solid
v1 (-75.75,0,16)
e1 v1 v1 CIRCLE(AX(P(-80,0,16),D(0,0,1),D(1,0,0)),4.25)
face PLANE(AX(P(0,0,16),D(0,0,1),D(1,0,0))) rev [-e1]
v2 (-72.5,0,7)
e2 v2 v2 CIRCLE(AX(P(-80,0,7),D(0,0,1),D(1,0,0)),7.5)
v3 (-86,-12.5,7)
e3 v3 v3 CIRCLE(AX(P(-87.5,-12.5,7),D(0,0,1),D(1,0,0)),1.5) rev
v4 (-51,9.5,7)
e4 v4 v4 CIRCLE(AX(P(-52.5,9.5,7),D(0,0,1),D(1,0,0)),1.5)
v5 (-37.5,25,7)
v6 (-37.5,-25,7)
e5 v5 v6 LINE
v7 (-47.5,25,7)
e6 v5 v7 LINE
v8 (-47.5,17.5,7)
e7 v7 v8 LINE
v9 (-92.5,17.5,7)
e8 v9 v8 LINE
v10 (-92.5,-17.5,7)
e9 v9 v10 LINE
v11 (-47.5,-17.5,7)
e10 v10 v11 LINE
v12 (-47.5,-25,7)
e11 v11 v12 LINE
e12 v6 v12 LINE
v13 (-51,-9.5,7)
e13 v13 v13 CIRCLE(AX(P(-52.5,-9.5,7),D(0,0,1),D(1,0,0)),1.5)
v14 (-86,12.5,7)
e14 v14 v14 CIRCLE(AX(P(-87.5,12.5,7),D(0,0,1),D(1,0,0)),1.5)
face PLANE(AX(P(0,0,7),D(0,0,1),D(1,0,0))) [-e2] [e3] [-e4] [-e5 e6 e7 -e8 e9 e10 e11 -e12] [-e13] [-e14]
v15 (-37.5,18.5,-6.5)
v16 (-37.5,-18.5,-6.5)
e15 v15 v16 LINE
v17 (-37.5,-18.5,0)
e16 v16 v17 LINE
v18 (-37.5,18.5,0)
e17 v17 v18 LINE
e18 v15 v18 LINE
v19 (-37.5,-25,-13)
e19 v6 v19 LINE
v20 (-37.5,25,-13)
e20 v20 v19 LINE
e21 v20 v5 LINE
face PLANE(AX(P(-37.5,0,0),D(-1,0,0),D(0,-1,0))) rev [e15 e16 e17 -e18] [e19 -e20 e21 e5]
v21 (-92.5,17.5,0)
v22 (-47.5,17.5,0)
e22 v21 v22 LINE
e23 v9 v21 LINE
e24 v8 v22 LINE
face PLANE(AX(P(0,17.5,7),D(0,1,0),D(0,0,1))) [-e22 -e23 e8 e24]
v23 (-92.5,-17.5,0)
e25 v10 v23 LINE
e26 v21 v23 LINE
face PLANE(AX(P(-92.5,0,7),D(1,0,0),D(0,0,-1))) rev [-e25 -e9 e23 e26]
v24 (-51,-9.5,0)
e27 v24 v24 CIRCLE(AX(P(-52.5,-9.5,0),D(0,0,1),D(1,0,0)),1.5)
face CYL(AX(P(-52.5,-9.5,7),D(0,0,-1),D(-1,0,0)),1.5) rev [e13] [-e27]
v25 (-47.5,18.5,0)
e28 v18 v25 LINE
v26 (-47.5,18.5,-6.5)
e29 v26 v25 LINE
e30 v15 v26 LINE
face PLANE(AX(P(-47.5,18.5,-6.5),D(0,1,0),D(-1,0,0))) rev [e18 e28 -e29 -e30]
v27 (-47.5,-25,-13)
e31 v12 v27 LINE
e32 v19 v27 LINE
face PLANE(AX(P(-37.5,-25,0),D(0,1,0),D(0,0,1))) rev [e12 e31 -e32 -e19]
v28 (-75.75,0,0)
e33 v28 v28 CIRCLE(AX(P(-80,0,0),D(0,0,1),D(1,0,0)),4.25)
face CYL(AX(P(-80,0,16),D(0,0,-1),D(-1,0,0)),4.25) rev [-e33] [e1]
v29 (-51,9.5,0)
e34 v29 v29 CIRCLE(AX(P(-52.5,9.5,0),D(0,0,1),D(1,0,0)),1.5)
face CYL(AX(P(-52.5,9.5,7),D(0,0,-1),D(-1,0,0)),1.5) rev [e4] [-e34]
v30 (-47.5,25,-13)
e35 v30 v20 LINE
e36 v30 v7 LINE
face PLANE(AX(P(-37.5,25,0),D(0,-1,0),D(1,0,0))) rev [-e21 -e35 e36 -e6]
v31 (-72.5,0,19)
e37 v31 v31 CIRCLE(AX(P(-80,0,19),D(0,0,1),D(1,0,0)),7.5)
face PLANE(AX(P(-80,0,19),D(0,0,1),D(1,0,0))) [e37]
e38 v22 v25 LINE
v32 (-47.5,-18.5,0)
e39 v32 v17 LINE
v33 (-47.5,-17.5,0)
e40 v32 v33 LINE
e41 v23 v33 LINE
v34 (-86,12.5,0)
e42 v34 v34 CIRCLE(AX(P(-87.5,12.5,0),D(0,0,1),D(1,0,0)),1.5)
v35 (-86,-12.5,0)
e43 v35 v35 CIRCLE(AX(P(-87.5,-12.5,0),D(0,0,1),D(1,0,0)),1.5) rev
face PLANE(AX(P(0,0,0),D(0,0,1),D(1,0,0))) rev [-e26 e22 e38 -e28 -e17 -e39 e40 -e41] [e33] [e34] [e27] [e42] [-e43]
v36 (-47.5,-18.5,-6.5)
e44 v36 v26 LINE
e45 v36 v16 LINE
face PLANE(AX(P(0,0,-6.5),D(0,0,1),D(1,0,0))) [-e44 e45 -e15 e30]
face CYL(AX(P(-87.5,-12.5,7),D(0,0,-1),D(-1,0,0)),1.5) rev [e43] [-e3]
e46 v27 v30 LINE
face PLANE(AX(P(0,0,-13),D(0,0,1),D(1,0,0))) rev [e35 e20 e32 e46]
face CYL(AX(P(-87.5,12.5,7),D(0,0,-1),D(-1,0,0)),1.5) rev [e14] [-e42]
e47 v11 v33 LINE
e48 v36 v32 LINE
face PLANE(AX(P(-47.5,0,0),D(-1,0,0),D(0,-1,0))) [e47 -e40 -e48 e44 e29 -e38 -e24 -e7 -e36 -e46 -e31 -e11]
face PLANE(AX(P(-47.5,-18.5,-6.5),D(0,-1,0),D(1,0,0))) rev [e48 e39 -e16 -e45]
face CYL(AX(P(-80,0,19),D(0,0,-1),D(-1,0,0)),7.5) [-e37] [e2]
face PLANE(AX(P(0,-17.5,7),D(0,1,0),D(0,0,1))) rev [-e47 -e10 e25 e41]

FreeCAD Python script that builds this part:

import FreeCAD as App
import Part
import Sketcher
Q = App.Units.Quantity

doc = App.newDocument("Part")
body = doc.addObject("PartDesign::Body", "Body")

# Sketch on XY plane
sketch1 = body.newObject("Sketcher::SketchObject", "Sketch")
sketch1.AttachmentSupport = (doc.getObject("XY_Plane"), [""])
sketch1.MapMode = "FlatFace"
sketch1.addGeometry([
    Part.LineSegment(App.Vector(-92.5, 17.5, 0), App.Vector(-92.5, -17.5, 0)),  # 0
    Part.LineSegment(App.Vector(-92.5, -17.5, 0), App.Vector(-47.5, -17.5, 0)),  # 1
    Part.LineSegment(App.Vector(-47.5, -17.5, 0), App.Vector(-47.5, 17.5, 0)),  # 2
    Part.LineSegment(App.Vector(-47.5, 17.5, 0), App.Vector(-92.5, 17.5, 0)),  # 3
    Part.Circle(App.Vector(-87.5, -12.5, 0), App.Vector(0, 0, 1), 1.5),  # 4
    Part.Circle(App.Vector(-52.5, -9.5, 0), App.Vector(0, 0, 1), 1.5),  # 5
    Part.Circle(App.Vector(-87.5, 12.5, 0), App.Vector(0, 0, 1), 1.5),  # 6
    Part.Circle(App.Vector(-52.5, 9.5, 0), App.Vector(0, 0, 1), 1.5),  # 7
], False)
sketch1.addConstraint([
    Sketcher.Constraint("Coincident", 0, 2, 1, 1),
    Sketcher.Constraint("Coincident", 1, 2, 2, 1),
    Sketcher.Constraint("Coincident", 2, 2, 3, 1),
    Sketcher.Constraint("Coincident", 3, 2, 0, 1),
    Sketcher.Constraint("Vertical", 0),
    Sketcher.Constraint("Horizontal", 1),
    Sketcher.Constraint("Vertical", 2),
    Sketcher.Constraint("Horizontal", 3),
    Sketcher.Constraint("Equal", 4, 5),
    Sketcher.Constraint("Equal", 5, 6),
    Sketcher.Constraint("Equal", 6, 7),
    Sketcher.Constraint("Symmetric", 4, 3, 6, 3, -1),
    Sketcher.Constraint("Symmetric", 5, 3, 7, 3, -1),
    Sketcher.Constraint("Diameter", 4, Q("3 mm")),
    Sketcher.Constraint("DistanceX", 1, 1, 1, 2, Q("45 mm")),
    Sketcher.Constraint("DistanceY", 0, 2, 0, 1, Q("35 mm")),
    Sketcher.Constraint("DistanceX", 4, 3, 5, 3, Q("35 mm")),
    Sketcher.Constraint("DistanceY", 4, 3, 5, 3, Q("3 mm")),
    Sketcher.Constraint("DistanceY", 4, 3, 6, 3, Q("25 mm")),
    Sketcher.Constraint("DistanceX", 0, 2, 4, 3, Q("5 mm")),
    Sketcher.Constraint("DistanceY", 0, 2, 4, 3, Q("5 mm")),
    Sketcher.Constraint("DistanceX", 4, 3, -1, 1, Q("87.5 mm")),
])
pad1 = body.newObject("PartDesign::Pad", "Pad")
pad1.Profile = sketch1
pad1.Length = 7

# Sketch on YZ plane
sketch2 = body.newObject("Sketcher::SketchObject", "Sketch001")
sketch2.AttachmentSupport = (doc.getObject("YZ_Plane"), [""])
sketch2.MapMode = "FlatFace"
sketch2.AttachmentOffset = App.Placement(App.Vector(0, 0, -47.5), App.Rotation())
sketch2.addGeometry([
    Part.LineSegment(App.Vector(25, 7, 0), App.Vector(-25, 7, 0)),
    Part.LineSegment(App.Vector(-25, 7, 0), App.Vector(-25, 0, 0)),
    Part.LineSegment(App.Vector(-25, 0, 0), App.Vector(25, 0, 0)),
    Part.LineSegment(App.Vector(25, 0, 0), App.Vector(25, 7, 0)),
], False)
sketch2.addConstraint([
    Sketcher.Constraint("Coincident", 0, 2, 1, 1),
    Sketcher.Constraint("Coincident", 1, 2, 2, 1),
    Sketcher.Constraint("Coincident", 2, 2, 3, 1),
    Sketcher.Constraint("Coincident", 3, 2, 0, 1),
    Sketcher.Constraint("Horizontal", 0),
    Sketcher.Constraint("Vertical", 1),
    Sketcher.Constraint("Horizontal", 2),
    Sketcher.Constraint("Vertical", 3),
    Sketcher.Constraint("Symmetric", 1, 2, 2, 2, -1, 1),
    Sketcher.Constraint("DistanceX", 0, 2, 0, 1, Q("50 mm")),
    Sketcher.Constraint("DistanceY", 1, 2, 1, 1, Q("7 mm")),
])
pad2 = body.newObject("PartDesign::Pad", "Pad001")
pad2.Profile = sketch2
pad2.Length = 10

# Sketch on XY plane
sketch3 = body.newObject("Sketcher::SketchObject", "Sketch002")
sketch3.AttachmentSupport = (doc.getObject("XY_Plane"), [""])
sketch3.MapMode = "FlatFace"
sketch3.addGeometry([
    Part.LineSegment(App.Vector(-38, 25, 0), App.Vector(-38, 18, 0)),  # 0
    Part.LineSegment(App.Vector(-38, 18, 0), App.Vector(-48, 18, 0)),  # 1
    Part.LineSegment(App.Vector(-48, 18, 0), App.Vector(-48, 25, 0)),  # 2
    Part.LineSegment(App.Vector(-48, 25, 0), App.Vector(-38, 25, 0)),  # 3
    Part.LineSegment(App.Vector(-38, -18, 0), App.Vector(-38, -25, 0)),  # 4
    Part.LineSegment(App.Vector(-38, -25, 0), App.Vector(-48, -25, 0)),  # 5
    Part.LineSegment(App.Vector(-48, -25, 0), App.Vector(-48, -18, 0)),  # 6
    Part.LineSegment(App.Vector(-48, -18, 0), App.Vector(-38, -18, 0)),  # 7
], False)
sketch3.addConstraint([
    Sketcher.Constraint("Coincident", 0, 2, 1, 1),
    Sketcher.Constraint("Coincident", 1, 2, 2, 1),
    Sketcher.Constraint("Coincident", 2, 2, 3, 1),
    Sketcher.Constraint("Coincident", 3, 2, 0, 1),
    Sketcher.Constraint("Coincident", 4, 2, 5, 1),
    Sketcher.Constraint("Coincident", 5, 2, 6, 1),
    Sketcher.Constraint("Coincident", 6, 2, 7, 1),
    Sketcher.Constraint("Coincident", 7, 2, 4, 1),
    Sketcher.Constraint("Vertical", 0),
    Sketcher.Constraint("Horizontal", 1),
    Sketcher.Constraint("Vertical", 2),
    Sketcher.Constraint("Horizontal", 3),
    Sketcher.Constraint("Vertical", 4),
    Sketcher.Constraint("Horizontal", 5),
    Sketcher.Constraint("Vertical", 6),
    Sketcher.Constraint("Horizontal", 7),
    Sketcher.Constraint("Symmetric", 3, 2, 4, 2, -1),
    Sketcher.Constraint("Symmetric", 1, 2, 6, 2, -1),
    Sketcher.Constraint("DistanceX", 1, 2, 1, 1, Q("10 mm")),
    Sketcher.Constraint("DistanceY", 0, 2, 0, 1, Q("6.5 mm")),
    Sketcher.Constraint("DistanceY", -1, 1, 2, 2, Q("25 mm")),
    Sketcher.Constraint("DistanceX", 0, 2, -1, 1, Q("37.5 mm")),
])
pad3 = body.newObject("PartDesign::Pad", "Pad002")
pad3.Profile = sketch3
pad3.Length = 6.5
pad3.Reversed = True

# Sketch on XY plane
sketch4 = body.newObject("Sketcher::SketchObject", "Sketch003")
sketch4.AttachmentSupport = (doc.getObject("XY_Plane"), [""])
sketch4.MapMode = "FlatFace"
sketch4.AttachmentOffset = App.Placement(App.Vector(0, 0, -6.5), App.Rotation())
sketch4.addGeometry([
    Part.LineSegment(App.Vector(-38, 25, 0), App.Vector(-38, -25, 0)),
    Part.LineSegment(App.Vector(-38, -25, 0), App.Vector(-48, -25, 0)),
    Part.LineSegment(App.Vector(-48, -25, 0), App.Vector(-48, 25, 0)),
    Part.LineSegment(App.Vector(-48, 25, 0), App.Vector(-38, 25, 0)),
], False)
sketch4.addConstraint([
    Sketcher.Constraint("Coincident", 0, 2, 1, 1),
    Sketcher.Constraint("Coincident", 1, 2, 2, 1),
    Sketcher.Constraint("Coincident", 2, 2, 3, 1),
    Sketcher.Constraint("Coincident", 3, 2, 0, 1),
    Sketcher.Constraint("Vertical", 0),
    Sketcher.Constraint("Horizontal", 1),
    Sketcher.Constraint("Vertical", 2),
    Sketcher.Constraint("Horizontal", 3),
    Sketcher.Constraint("DistanceX", 1, 2, 1, 1, Q("10 mm")),
    Sketcher.Constraint("DistanceY", 0, 2, 0, 1, Q("50 mm")),
    Sketcher.Constraint("DistanceY", 0, 2, -1, 1, Q("25 mm")),
    Sketcher.Constraint("DistanceX", 0, 2, -1, 1, Q("37.5 mm")),
])
pad4 = body.newObject("PartDesign::Pad", "Pad003")
pad4.Profile = sketch4
pad4.Length = 6.5
pad4.Reversed = True

# Sketch on XY plane
sketch5 = body.newObject("Sketcher::SketchObject", "Sketch004")
sketch5.AttachmentSupport = (doc.getObject("XY_Plane"), [""])
sketch5.MapMode = "FlatFace"
sketch5.AttachmentOffset = App.Placement(App.Vector(0, 0, 7), App.Rotation())
sketch5.addGeometry(Part.Circle(App.Vector(-80, 0, 0), App.Vector(0, 0, 1), 8), False)
sketch5.addConstraint([
    Sketcher.Constraint("PointOnObject", 0, 3, -1),
    Sketcher.Constraint("Diameter", 0, Q("15 mm")),
    Sketcher.Constraint("DistanceX", 0, 3, -1, 1, Q("80 mm")),
])
pad5 = body.newObject("PartDesign::Pad", "Pad004")
pad5.Profile = sketch5
pad5.Length = 12

# Sketch on XY plane
sketch6 = body.newObject("Sketcher::SketchObject", "Sketch005")
sketch6.AttachmentSupport = (doc.getObject("XY_Plane"), [""])
sketch6.MapMode = "FlatFace"
sketch6.addGeometry(Part.Circle(App.Vector(-80, 0, 0), App.Vector(0, 0, 1), 4.2), False)
sketch6.addConstraint([
    Sketcher.Constraint("PointOnObject", 0, 3, -1),
    Sketcher.Constraint("Diameter", 0, Q("8.5 mm")),
    Sketcher.Constraint("DistanceX", 0, 3, -1, 1, Q("80 mm")),
])
pocket1 = body.newObject("PartDesign::Pocket", "Pocket")
pocket1.Profile = sketch6
pocket1.Length = 16
pocket1.Reversed = True

doc.recompute()
